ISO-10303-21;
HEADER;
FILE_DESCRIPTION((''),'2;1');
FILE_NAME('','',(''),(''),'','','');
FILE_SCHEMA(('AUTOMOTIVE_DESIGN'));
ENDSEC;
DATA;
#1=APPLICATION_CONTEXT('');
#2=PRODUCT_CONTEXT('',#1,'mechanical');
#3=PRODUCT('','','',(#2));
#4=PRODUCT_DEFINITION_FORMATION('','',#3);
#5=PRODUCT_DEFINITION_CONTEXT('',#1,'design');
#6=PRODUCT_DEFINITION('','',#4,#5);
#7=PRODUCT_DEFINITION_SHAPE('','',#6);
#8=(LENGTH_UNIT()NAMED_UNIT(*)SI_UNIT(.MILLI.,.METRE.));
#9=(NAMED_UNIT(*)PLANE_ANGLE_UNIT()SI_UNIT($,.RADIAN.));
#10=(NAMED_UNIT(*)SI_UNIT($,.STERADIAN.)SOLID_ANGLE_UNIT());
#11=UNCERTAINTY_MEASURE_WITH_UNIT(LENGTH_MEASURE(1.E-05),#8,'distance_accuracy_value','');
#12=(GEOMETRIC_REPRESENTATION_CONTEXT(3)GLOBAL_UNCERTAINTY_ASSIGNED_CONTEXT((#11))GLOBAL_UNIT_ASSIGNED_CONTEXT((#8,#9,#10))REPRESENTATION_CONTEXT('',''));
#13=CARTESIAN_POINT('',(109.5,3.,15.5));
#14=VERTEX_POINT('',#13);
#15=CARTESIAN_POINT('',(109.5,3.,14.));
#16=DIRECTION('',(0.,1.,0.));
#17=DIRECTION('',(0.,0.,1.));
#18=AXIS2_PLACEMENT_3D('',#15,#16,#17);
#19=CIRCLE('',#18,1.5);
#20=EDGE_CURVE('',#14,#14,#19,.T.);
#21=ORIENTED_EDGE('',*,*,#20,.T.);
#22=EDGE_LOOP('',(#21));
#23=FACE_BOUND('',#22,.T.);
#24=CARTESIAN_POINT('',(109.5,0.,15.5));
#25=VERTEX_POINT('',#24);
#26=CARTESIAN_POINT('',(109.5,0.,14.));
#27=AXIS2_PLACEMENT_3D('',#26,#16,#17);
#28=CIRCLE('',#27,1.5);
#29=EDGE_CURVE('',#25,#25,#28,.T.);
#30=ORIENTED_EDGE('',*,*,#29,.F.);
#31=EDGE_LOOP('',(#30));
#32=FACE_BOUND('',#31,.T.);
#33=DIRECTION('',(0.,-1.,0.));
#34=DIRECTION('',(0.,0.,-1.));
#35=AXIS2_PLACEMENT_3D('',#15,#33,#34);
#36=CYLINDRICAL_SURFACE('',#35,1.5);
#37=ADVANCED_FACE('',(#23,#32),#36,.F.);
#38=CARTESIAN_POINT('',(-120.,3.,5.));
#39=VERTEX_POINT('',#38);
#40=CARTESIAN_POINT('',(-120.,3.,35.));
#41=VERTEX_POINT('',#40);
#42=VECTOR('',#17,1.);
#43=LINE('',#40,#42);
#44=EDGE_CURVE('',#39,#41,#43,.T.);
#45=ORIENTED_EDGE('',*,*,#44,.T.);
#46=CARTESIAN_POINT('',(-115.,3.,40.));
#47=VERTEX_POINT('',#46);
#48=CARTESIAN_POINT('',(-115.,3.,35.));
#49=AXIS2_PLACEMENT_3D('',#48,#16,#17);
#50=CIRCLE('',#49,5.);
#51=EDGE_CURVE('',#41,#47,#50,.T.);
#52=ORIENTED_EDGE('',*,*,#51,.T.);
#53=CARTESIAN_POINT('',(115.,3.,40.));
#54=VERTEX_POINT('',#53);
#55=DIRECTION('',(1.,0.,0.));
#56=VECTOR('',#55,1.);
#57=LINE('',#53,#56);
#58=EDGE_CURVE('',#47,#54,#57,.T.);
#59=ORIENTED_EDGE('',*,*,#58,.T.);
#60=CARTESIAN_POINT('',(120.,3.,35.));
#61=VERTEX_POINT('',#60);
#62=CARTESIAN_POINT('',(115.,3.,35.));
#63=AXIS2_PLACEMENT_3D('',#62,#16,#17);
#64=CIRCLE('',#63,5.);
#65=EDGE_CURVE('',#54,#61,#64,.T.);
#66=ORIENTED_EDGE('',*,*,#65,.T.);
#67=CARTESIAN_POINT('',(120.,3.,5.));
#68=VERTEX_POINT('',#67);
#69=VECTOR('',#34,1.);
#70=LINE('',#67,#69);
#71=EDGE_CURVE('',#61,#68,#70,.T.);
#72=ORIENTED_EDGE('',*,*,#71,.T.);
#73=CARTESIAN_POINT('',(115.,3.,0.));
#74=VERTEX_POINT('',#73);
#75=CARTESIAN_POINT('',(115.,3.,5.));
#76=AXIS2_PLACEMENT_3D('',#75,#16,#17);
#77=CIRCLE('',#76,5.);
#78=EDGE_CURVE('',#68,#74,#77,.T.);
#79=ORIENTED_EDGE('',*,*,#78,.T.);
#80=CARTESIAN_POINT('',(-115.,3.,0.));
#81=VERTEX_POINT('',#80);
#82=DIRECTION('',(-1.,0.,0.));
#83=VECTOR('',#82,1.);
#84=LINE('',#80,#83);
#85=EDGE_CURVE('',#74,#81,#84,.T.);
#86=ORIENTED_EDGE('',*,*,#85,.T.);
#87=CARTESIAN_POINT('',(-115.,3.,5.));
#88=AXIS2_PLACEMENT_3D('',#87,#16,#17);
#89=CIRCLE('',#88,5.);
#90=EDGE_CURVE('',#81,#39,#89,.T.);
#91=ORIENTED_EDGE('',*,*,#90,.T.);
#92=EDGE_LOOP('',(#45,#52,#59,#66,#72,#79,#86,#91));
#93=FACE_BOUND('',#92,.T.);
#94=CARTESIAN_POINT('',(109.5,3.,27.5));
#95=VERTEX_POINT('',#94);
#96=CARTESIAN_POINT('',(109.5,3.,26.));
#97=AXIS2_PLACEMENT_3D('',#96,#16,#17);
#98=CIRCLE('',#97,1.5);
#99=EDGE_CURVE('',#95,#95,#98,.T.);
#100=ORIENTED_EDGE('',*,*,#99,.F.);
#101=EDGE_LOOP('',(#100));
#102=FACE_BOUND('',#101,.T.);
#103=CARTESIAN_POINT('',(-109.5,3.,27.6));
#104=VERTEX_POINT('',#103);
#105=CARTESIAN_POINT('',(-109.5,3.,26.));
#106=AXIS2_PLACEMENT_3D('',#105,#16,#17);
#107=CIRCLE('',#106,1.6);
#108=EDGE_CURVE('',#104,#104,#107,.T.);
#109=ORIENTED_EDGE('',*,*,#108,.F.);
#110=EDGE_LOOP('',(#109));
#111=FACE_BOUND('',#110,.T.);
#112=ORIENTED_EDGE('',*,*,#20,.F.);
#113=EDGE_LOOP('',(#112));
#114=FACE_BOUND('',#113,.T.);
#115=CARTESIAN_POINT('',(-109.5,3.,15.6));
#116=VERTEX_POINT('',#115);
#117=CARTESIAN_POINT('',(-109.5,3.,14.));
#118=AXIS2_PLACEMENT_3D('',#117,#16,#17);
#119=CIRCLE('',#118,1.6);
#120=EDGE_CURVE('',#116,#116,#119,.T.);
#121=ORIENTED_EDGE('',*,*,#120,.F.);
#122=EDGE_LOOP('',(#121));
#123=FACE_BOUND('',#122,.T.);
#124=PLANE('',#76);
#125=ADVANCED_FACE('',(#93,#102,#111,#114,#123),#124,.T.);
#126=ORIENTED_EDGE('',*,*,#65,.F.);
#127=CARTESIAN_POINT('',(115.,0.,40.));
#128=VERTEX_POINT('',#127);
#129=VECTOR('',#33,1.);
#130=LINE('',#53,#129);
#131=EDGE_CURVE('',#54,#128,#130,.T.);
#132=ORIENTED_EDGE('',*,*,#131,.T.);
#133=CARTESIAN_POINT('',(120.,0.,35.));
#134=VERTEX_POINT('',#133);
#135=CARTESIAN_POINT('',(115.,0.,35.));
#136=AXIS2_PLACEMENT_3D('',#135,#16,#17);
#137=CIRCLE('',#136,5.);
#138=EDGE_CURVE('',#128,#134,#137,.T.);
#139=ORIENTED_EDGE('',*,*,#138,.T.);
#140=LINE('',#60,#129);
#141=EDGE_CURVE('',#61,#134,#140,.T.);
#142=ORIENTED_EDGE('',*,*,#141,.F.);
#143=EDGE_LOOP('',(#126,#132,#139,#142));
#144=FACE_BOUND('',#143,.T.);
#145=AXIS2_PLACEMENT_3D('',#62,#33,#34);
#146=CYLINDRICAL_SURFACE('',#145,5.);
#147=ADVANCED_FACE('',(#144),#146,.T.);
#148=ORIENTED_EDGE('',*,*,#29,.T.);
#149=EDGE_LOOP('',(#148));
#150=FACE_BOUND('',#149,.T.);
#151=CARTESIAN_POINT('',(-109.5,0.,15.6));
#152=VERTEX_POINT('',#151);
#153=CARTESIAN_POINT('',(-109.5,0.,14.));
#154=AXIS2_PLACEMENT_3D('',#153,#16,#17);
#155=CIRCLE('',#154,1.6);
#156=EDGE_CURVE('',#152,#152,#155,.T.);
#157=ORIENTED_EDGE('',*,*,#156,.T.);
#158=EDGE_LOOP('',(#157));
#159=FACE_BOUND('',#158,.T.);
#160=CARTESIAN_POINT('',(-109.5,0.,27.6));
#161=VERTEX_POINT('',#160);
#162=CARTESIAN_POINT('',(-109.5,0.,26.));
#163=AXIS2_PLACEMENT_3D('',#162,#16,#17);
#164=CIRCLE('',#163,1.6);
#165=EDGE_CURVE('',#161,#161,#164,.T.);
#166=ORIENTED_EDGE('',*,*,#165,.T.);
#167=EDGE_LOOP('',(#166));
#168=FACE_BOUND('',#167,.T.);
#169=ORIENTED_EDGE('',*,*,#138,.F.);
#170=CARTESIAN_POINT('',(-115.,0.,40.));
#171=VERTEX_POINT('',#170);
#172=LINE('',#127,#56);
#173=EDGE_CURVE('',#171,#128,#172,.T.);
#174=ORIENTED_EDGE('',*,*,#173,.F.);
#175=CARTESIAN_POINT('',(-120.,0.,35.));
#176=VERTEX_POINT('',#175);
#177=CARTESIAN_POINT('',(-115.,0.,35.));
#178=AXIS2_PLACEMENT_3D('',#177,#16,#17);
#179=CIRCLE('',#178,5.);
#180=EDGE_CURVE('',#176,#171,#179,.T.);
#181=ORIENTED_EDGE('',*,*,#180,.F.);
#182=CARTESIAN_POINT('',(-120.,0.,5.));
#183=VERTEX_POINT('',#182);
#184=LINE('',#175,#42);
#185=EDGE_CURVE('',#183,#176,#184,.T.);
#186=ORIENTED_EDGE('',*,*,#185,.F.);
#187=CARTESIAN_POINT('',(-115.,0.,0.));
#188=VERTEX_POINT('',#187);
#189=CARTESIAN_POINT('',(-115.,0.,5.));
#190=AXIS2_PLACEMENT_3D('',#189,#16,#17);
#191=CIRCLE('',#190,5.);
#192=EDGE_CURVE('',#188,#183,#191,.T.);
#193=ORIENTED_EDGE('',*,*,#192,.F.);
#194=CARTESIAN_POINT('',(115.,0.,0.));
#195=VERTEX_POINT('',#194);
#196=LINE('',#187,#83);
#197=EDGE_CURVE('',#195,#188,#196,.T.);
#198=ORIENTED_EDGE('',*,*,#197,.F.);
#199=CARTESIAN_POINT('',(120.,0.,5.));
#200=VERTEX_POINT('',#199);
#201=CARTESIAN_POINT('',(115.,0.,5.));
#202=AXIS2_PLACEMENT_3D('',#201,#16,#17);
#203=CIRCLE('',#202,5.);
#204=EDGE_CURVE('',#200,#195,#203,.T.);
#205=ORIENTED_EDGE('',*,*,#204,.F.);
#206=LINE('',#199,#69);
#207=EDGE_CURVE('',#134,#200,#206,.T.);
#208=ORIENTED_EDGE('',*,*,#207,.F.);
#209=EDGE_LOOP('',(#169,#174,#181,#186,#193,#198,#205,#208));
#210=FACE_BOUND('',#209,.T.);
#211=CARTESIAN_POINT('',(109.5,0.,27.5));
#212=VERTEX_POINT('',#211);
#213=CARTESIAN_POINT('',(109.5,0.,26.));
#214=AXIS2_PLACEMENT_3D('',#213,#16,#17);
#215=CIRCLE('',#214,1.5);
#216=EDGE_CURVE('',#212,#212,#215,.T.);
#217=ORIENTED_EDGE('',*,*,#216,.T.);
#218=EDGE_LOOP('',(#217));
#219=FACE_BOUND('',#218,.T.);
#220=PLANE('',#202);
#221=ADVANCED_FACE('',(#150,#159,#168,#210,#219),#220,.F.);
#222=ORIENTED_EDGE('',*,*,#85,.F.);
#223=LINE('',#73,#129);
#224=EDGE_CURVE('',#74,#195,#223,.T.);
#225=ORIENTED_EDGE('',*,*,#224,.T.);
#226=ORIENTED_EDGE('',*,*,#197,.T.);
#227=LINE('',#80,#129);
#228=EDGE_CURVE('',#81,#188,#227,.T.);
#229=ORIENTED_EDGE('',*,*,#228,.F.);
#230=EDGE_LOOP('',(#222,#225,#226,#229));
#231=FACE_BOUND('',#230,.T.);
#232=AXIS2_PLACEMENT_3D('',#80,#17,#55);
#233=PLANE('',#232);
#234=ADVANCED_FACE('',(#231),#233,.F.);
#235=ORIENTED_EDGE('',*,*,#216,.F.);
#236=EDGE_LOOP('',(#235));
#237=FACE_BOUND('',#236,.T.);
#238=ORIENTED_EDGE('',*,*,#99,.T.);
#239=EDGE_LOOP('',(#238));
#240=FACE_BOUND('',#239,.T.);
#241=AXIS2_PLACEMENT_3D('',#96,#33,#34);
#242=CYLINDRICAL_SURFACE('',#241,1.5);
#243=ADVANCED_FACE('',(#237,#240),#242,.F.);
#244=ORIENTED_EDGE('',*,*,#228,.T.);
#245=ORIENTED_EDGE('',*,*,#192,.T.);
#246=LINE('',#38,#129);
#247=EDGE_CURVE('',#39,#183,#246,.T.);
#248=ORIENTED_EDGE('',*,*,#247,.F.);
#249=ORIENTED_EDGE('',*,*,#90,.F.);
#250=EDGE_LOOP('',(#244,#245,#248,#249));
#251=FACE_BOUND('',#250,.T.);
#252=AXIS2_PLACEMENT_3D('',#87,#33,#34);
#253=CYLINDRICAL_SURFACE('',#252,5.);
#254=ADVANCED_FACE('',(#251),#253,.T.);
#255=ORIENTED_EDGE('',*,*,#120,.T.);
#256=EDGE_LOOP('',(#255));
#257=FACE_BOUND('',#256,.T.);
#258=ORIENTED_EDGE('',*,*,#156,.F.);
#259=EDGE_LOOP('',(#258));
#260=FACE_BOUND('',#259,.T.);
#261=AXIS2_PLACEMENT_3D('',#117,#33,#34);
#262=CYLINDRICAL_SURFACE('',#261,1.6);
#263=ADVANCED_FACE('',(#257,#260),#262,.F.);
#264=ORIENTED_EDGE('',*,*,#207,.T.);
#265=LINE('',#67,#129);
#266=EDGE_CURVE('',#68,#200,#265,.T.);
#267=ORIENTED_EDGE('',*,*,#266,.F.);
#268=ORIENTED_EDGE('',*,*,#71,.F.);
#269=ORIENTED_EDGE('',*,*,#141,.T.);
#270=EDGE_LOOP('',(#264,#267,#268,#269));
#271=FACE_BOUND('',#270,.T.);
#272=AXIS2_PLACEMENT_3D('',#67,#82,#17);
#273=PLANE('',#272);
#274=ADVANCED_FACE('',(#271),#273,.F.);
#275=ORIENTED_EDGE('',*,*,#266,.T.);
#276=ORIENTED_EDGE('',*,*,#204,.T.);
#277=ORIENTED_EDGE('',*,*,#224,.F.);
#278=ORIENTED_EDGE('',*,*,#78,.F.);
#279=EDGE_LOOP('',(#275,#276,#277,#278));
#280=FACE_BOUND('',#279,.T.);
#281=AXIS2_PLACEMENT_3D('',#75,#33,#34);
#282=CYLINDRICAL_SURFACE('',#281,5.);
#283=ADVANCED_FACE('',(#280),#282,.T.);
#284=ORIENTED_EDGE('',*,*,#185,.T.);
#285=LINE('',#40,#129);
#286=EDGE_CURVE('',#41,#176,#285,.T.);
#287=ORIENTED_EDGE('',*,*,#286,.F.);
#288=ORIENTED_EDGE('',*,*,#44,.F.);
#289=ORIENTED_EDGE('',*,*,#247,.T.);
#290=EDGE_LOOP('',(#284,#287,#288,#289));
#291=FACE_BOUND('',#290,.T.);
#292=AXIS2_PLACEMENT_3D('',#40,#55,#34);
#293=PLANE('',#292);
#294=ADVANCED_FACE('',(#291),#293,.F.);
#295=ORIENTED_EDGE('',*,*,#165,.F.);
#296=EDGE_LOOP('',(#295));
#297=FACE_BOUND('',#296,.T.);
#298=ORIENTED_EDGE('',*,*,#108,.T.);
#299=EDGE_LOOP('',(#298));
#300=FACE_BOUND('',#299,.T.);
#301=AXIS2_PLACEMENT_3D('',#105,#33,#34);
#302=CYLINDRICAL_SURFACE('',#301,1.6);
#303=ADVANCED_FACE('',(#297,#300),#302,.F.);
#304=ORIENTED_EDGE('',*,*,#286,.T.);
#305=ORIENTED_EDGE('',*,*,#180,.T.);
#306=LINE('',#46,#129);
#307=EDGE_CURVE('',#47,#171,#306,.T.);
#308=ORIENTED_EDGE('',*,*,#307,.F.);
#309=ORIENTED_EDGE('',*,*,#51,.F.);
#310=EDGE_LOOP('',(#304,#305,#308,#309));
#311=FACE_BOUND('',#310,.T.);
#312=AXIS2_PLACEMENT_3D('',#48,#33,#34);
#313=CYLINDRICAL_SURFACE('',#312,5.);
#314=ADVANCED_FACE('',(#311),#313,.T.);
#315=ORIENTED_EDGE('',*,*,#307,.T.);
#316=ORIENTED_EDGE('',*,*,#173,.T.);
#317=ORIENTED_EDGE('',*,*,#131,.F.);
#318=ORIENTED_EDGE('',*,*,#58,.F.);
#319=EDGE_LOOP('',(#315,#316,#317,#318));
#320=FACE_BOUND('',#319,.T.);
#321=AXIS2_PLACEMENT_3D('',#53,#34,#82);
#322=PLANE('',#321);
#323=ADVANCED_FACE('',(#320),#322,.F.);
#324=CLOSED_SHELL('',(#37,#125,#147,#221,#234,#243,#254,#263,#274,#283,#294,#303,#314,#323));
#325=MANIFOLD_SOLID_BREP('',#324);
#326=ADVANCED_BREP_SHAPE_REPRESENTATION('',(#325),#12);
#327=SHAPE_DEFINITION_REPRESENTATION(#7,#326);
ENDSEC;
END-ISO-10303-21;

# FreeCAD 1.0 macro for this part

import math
import FreeCAD as App
import Part
import Sketcher
from FreeCAD import Vector

doc = App.newDocument("Part")
body = doc.addObject("PartDesign::Body", "Body")

sketch1 = body.newObject("Sketcher::SketchObject", "Sketch")
sketch1.AttachmentSupport = (doc.getObject("XZ_Plane"), [""])
sketch1.MapMode = "FlatFace"
sketch1.addGeometry(Part.LineSegment(Vector(115, 0, 0), Vector(-115, 0, 0)), False)
sketch1.addGeometry(Part.ArcOfCircle(Part.Circle(Vector(-115, 5, 0), Vector(0, 0, 1), 5), math.radians(180), math.radians(270)), False)
sketch1.addGeometry(Part.LineSegment(Vector(-120, 5, 0), Vector(-120, 35, 0)), False)
sketch1.addGeometry(Part.ArcOfCircle(Part.Circle(Vector(-115, 35, 0), Vector(0, 0, 1), 5), math.radians(90), math.radians(180)), False)
sketch1.addGeometry(Part.LineSegment(Vector(-115, 40, 0), Vector(115, 40, 0)), False)
sketch1.addGeometry(Part.ArcOfCircle(Part.Circle(Vector(115, 35, 0), Vector(0, 0, 1), 5), math.radians(0), math.radians(90)), False)
sketch1.addGeometry(Part.LineSegment(Vector(120, 35, 0), Vector(120, 5, 0)), False)
sketch1.addGeometry(Part.ArcOfCircle(Part.Circle(Vector(115, 5, 0), Vector(0, 0, 1), 5), math.radians(-90), math.radians(0)), False)
sketch1.addGeometry(Part.Circle(Vector(109.5, 26, 0), Vector(0, 0, 1), 1.5), False)
sketch1.addGeometry(Part.Circle(Vector(-109.5, 26, 0), Vector(0, 0, 1), 1.6), False)
sketch1.addGeometry(Part.Circle(Vector(109.5, 14, 0), Vector(0, 0, 1), 1.5), False)
sketch1.addGeometry(Part.Circle(Vector(-109.5, 14, 0), Vector(0, 0, 1), 1.6), False)
sketch1.addConstraint(Sketcher.Constraint("Tangent", 0, 2, 1, 2))
sketch1.addConstraint(Sketcher.Constraint("Tangent", 1, 1, 2, 1))
sketch1.addConstraint(Sketcher.Constraint("Tangent", 2, 2, 3, 2))
sketch1.addConstraint(Sketcher.Constraint("Tangent", 3, 1, 4, 1))
sketch1.addConstraint(Sketcher.Constraint("Tangent", 4, 2, 5, 2))
sketch1.addConstraint(Sketcher.Constraint("Tangent", 5, 1, 6, 1))
sketch1.addConstraint(Sketcher.Constraint("Tangent", 6, 2, 7, 2))
sketch1.addConstraint(Sketcher.Constraint("Tangent", 7, 1, 0, 1))
sketch1.addConstraint(Sketcher.Constraint("Horizontal", 0))
sketch1.addConstraint(Sketcher.Constraint("Vertical", 2))
sketch1.addConstraint(Sketcher.Constraint("Horizontal", 4))
sketch1.addConstraint(Sketcher.Constraint("Vertical", 6))
sketch1.addConstraint(Sketcher.Constraint("Equal", 1, 3))
sketch1.addConstraint(Sketcher.Constraint("Equal", 3, 5))
sketch1.addConstraint(Sketcher.Constraint("Equal", 5, 7))
sketch1.addConstraint(Sketcher.Constraint("Equal", 8, 10))
sketch1.addConstraint(Sketcher.Constraint("Equal", 9, 11))
sketch1.addConstraint(Sketcher.Constraint("Symmetric", 0, 2, 7, 1, -1, 1))
sketch1.addConstraint(Sketcher.Constraint("Symmetric", 8, 3, 9, 3, -2))
sketch1.addConstraint(Sketcher.Constraint("Symmetric", 10, 3, 11, 3, -2))
sketch1.addConstraint(Sketcher.Constraint("Vertical", 8, 3, 10, 3))
sketch1.addConstraint(Sketcher.Constraint("Diameter", 8, 3.0))
sketch1.addConstraint(Sketcher.Constraint("Radius", 1, 5.0))
sketch1.addConstraint(Sketcher.Constraint("Diameter", 9, 3.2))
sketch1.addConstraint(Sketcher.Constraint("DistanceX", 0, 2, 0, 1, 230.0))
sketch1.addConstraint(Sketcher.Constraint("DistanceY", 2, 1, 2, 2, 30.0))
sketch1.addConstraint(Sketcher.Constraint("DistanceY", -1, 1, 8, 3, 26.0))
sketch1.addConstraint(Sketcher.Constraint("DistanceY", -1, 1, 10, 3, 14.0))
sketch1.addConstraint(Sketcher.Constraint("DistanceX", 9, 3, 8, 3, 219.0))
pad1 = body.newObject("PartDesign::Pad", "Pad")
pad1.Profile = sketch1
pad1.Length = 3
pad1.Reversed = True

doc.recompute()
